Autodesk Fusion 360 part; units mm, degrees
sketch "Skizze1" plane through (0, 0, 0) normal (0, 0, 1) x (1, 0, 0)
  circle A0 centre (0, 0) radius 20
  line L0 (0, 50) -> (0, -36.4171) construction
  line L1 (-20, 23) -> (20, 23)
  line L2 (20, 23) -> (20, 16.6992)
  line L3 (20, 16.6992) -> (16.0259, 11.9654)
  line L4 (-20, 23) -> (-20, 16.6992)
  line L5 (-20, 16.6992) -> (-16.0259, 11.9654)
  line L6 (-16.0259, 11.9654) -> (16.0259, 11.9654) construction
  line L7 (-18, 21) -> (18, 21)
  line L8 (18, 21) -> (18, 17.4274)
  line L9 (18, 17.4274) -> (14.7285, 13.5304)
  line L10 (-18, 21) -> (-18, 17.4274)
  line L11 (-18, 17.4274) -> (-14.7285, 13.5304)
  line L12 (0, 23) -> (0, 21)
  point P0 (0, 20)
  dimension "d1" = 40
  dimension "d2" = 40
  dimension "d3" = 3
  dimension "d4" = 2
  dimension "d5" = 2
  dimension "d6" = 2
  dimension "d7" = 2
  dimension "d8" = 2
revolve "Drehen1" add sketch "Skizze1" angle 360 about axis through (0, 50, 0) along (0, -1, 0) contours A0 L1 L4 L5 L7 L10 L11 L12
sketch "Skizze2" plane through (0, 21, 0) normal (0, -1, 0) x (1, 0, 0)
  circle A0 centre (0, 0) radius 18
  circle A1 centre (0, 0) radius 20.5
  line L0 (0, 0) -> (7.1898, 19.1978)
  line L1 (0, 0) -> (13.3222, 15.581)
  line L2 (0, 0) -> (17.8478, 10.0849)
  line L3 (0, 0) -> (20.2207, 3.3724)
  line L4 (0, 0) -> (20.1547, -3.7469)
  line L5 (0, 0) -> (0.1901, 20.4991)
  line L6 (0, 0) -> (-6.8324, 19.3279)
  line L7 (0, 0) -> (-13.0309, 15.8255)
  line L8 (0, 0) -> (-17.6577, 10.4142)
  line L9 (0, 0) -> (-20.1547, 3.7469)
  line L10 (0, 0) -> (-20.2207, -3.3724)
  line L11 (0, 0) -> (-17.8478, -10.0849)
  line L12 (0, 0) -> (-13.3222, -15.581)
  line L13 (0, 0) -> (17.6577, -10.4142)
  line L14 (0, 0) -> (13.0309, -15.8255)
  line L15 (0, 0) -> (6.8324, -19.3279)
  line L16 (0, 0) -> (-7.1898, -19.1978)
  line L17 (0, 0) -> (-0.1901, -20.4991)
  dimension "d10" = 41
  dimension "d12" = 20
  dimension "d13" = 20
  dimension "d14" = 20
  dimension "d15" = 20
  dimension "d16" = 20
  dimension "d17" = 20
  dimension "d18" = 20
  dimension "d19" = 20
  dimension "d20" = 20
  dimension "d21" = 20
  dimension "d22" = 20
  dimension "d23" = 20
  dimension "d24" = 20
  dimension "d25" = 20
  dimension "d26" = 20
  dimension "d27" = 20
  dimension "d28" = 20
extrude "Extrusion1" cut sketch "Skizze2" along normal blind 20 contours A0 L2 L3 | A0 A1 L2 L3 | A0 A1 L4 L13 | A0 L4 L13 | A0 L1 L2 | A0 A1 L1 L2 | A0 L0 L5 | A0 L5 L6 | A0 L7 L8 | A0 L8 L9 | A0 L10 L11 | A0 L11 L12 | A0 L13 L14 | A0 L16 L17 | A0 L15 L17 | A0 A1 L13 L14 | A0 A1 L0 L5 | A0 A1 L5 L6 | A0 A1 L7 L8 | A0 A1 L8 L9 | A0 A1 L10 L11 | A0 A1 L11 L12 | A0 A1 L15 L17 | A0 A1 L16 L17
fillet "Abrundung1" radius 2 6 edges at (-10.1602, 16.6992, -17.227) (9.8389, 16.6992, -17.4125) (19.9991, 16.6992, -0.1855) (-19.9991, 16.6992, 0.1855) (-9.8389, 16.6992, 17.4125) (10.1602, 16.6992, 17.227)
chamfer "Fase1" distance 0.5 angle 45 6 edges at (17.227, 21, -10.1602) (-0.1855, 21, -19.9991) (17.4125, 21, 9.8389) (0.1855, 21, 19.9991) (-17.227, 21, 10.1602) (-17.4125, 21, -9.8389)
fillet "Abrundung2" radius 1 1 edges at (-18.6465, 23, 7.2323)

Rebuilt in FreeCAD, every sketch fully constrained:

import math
import FreeCAD as App
import Part
import Sketcher


def edges_at(feature, points):
    """Names of the edges that pass closest to the given points."""
    edges = feature.Shape.Edges
    near = lambda p: min(range(len(edges)), key=lambda i: edges[i].distToShape(Part.Vertex(*p))[0])
    return sorted({f"Edge{near(p) + 1}" for p in points})

doc = App.newDocument("Part")
body = doc.addObject("PartDesign::Body", "Body")

sketch1 = doc.addObject("Sketcher::SketchObject", "Sketch")
body.addObject(sketch1)
sketch1.AttachmentSupport = (doc.XY_Plane, [""])
sketch1.MapMode = "FlatFace"
sketch1.addGeometry([
    Part.LineSegment(App.Vector(-20, 16.6992, 0), App.Vector(-16.0259, 11.9654, 0)),
    Part.ArcOfCircle(Part.Circle(App.Vector(0, 0, 0), App.Vector(0, 0, 1), 20), math.radians(137.42773), math.radians(143.253919)),
    Part.LineSegment(App.Vector(-14.7285, 13.5304, 0), App.Vector(-18, 17.4274, 0)),
    Part.LineSegment(App.Vector(-18, 17.4274, 0), App.Vector(-18, 21, 0)),
    Part.LineSegment(App.Vector(-18, 21, 0), App.Vector(0, 21, 0)),
    Part.LineSegment(App.Vector(0, 21, 0), App.Vector(0, 23, 0)),
    Part.LineSegment(App.Vector(0, 23, 0), App.Vector(-20, 23, 0)),
    Part.LineSegment(App.Vector(-20, 23, 0), App.Vector(-20, 16.6992, 0)),
], False)
sketch1.addConstraint([
    Sketcher.Constraint("Coincident", 0, 2, 1, 2),
    Sketcher.Constraint("Coincident", 1, 1, 2, 1),
    Sketcher.Constraint("Coincident", 2, 2, 3, 1),
    Sketcher.Constraint("Coincident", 3, 2, 4, 1),
    Sketcher.Constraint("Coincident", 4, 2, 5, 1),
    Sketcher.Constraint("Coincident", 5, 2, 6, 1),
    Sketcher.Constraint("Coincident", 6, 2, 7, 1),
    Sketcher.Constraint("Coincident", 7, 2, 0, 1),
    Sketcher.Constraint("Vertical", 3),
    Sketcher.Constraint("Horizontal", 4),
    Sketcher.Constraint("Vertical", 5),
    Sketcher.Constraint("Horizontal", 6),
    Sketcher.Constraint("Vertical", 7),
    Sketcher.Constraint("Coincident", 1, 3, -1, 1),
    Sketcher.Constraint("PointOnObject", 4, 2, -2),
    Sketcher.Constraint("Parallel", 0, 2),
    Sketcher.Constraint("Radius", 1, 20.0),
    Sketcher.Constraint("DistanceY", 5, 1, 5, 2, 2.0),
    Sketcher.Constraint("DistanceX", 6, 2, 3, 2, 2.0),
    Sketcher.Constraint("DistanceX", 4, 1, 4, 2, 18.0),
    Sketcher.Constraint("DistanceY", -1, 1, 3, 2, 21.0),
    Sketcher.Constraint("DistanceY", 3, 1, 3, 2, 3.5726),
    Sketcher.Constraint("DistanceY", 7, 2, 7, 1, 6.3008),
    Sketcher.Constraint("DistanceX", 0, 2, -1, 1, 16.026),
])
revolution = doc.addObject("PartDesign::Revolution", "Revolution")
body.addObject(revolution)
revolution.Profile = sketch1
revolution.ReferenceAxis = (sketch1, ["V_Axis"])
revolution.Angle = 360

sketch2 = doc.addObject("Sketcher::SketchObject", "Sketch001")
body.addObject(sketch2)
sketch2.AttachmentSupport = (doc.XZ_Plane, [""])
sketch2.MapMode = "FlatFace"
sketch2.AttachmentOffset = App.Placement(App.Vector(0, 0, -21), App.Rotation())
sketch2.addGeometry([
    Part.LineSegment(App.Vector(0, 0, 0), App.Vector(20.2207, 3.3724, 0)),
    Part.ArcOfCircle(Part.Circle(App.Vector(0, 0, 0), App.Vector(0, 0, 1), 20.5), math.radians(9.468617), math.radians(49.468612)),
    Part.LineSegment(App.Vector(13.3222, 15.581, 0), App.Vector(0, 0, 0)),
    Part.LineSegment(App.Vector(20.1547, -3.7469, 0), App.Vector(0, 0, 0)),
    Part.LineSegment(App.Vector(0, 0, 0), App.Vector(13.0309, -15.8255, 0)),
    Part.ArcOfCircle(Part.Circle(App.Vector(0, 0, 0), App.Vector(0, 0, 1), 20.5), math.radians(-50.531563), math.radians(-10.531458)),
    Part.LineSegment(App.Vector(0, 0, 0), App.Vector(7.1898, 19.1978, 0)),
    Part.ArcOfCircle(Part.Circle(App.Vector(0, 0, 0), App.Vector(0, 0, 1), 20.5), math.radians(69.468489), math.radians(109.468468)),
    Part.LineSegment(App.Vector(-6.8324, 19.3279, 0), App.Vector(0, 0, 0)),
    Part.LineSegment(App.Vector(0, 0, 0), App.Vector(-13.0309, 15.8255, 0)),
    Part.ArcOfCircle(Part.Circle(App.Vector(0, 0, 0), App.Vector(0, 0, 1), 20.5), math.radians(129.468437), math.radians(169.468542)),
    Part.LineSegment(App.Vector(-20.1547, 3.7469, 0), App.Vector(0, 0, 0)),
    Part.LineSegment(App.Vector(0, 0, 0), App.Vector(-20.2207, -3.3724, 0)),
    Part.ArcOfCircle(Part.Circle(App.Vector(0, 0, 0), App.Vector(0, 0, 1), 20.5), math.radians(-170.531383), math.radians(-130.531388)),
    Part.LineSegment(App.Vector(-13.3222, -15.581, 0), App.Vector(0, 0, 0)),
    Part.LineSegment(App.Vector(0, 0, 0), App.Vector(-7.1898, -19.1978, 0)),
    Part.ArcOfCircle(Part.Circle(App.Vector(0, 0, 0), App.Vector(0, 0, 1), 20.5), math.radians(-110.531511), math.radians(-70.531532)),
    Part.LineSegment(App.Vector(6.8324, -19.3279, 0), App.Vector(0, 0, 0)),
], False)
sketch2.addConstraint([
    Sketcher.Constraint("Coincident", 0, 2, 1, 1),
    Sketcher.Constraint("Coincident", 1, 2, 2, 1),
    Sketcher.Constraint("Coincident", 2, 2, 0, 1),
    Sketcher.Constraint("Coincident", 3, 2, 4, 1),
    Sketcher.Constraint("Coincident", 4, 2, 5, 1),
    Sketcher.Constraint("Coincident", 5, 2, 3, 1),
    Sketcher.Constraint("Coincident", 6, 2, 7, 1),
    Sketcher.Constraint("Coincident", 7, 2, 8, 1),
    Sketcher.Constraint("Coincident", 8, 2, 6, 1),
    Sketcher.Constraint("Coincident", 9, 2, 10, 1),
    Sketcher.Constraint("Coincident", 10, 2, 11, 1),
    Sketcher.Constraint("Coincident", 11, 2, 9, 1),
    Sketcher.Constraint("Coincident", 12, 2, 13, 1),
    Sketcher.Constraint("Coincident", 13, 2, 14, 1),
    Sketcher.Constraint("Coincident", 14, 2, 12, 1),
    Sketcher.Constraint("Coincident", 15, 2, 16, 1),
    Sketcher.Constraint("Coincident", 16, 2, 17, 1),
    Sketcher.Constraint("Coincident", 17, 2, 15, 1),
    Sketcher.Constraint("Coincident", 1, 3, -1, 1),
    Sketcher.Constraint("Coincident", 5, 3, -1, 1),
    Sketcher.Constraint("Coincident", 7, 3, -1, 1),
    Sketcher.Constraint("Coincident", 10, 3, -1, 1),
    Sketcher.Constraint("Coincident", 13, 3, -1, 1),
    Sketcher.Constraint("Coincident", 16, 3, -1, 1),
    Sketcher.Constraint("Coincident", 2, 2, -1, 1),
    Sketcher.Constraint("Coincident", 3, 2, -1, 1),
    Sketcher.Constraint("Coincident", 8, 2, -1, 1),
    Sketcher.Constraint("Coincident", 11, 2, -1, 1),
    Sketcher.Constraint("Coincident", 14, 2, -1, 1),
    Sketcher.Constraint("Coincident", 17, 2, -1, 1),
    Sketcher.Constraint("Equal", 1, 5),
    Sketcher.Constraint("Equal", 5, 7),
    Sketcher.Constraint("Equal", 7, 10),
    Sketcher.Constraint("Equal", 10, 13),
    Sketcher.Constraint("Equal", 13, 16),
    Sketcher.Constraint("Parallel", 4, 9),
    Sketcher.Constraint("Parallel", 3, 11),
    Sketcher.Constraint("Parallel", 0, 12),
    Sketcher.Constraint("Parallel", 2, 14),
    Sketcher.Constraint("Parallel", 6, 15),
    Sketcher.Constraint("Parallel", 8, 17),
    Sketcher.Constraint("Radius", 1, 20.5),
    Sketcher.Constraint("DistanceY", 6, 2, 7, 2, 0.13),
    Sketcher.Constraint("DistanceY", -1, 1, 1, 2, 15.581),
    Sketcher.Constraint("DistanceX", -1, 1, 4, 2, 13.031),
    Sketcher.Constraint("DistanceY", 5, 2, -1, 1, 3.747),
    Sketcher.Constraint("DistanceY", -1, 1, 7, 2, 19.328),
    Sketcher.Constraint("DistanceX", 5, 2, 0, 2, 0.066),
])
pocket1 = doc.addObject("PartDesign::Pocket", "Pocket")
body.addObject(pocket1)
pocket1.Profile = sketch2
pocket1.Length = 20
pocket1.Reversed = True
doc.recompute()

fillet = doc.addObject("PartDesign::Fillet", "Fillet")
body.addObject(fillet)
fillet.Base = (pocket1, edges_at(pocket1, [
    (-10.16, 16.699, -17.227),
    (9.839, 16.699, -17.413),
    (19.999, 16.699, -0.185),
    (-19.999, 16.699, 0.185),
    (-9.839, 16.699, 17.413),
    (10.16, 16.699, 17.227),
]))
fillet.Radius = 2
doc.recompute()

chamfer = doc.addObject("PartDesign::Chamfer", "Chamfer")
body.addObject(chamfer)
chamfer.Base = (fillet, edges_at(fillet, [
    (17.227, 21, -10.16),
    (-0.185, 21, -19.999),
    (17.413, 21, 9.839),
    (0.185, 21, 19.999),
    (-17.227, 21, 10.16),
    (-17.413, 21, -9.839),
]))
chamfer.Size = 0.5
doc.recompute()

fillet2 = doc.addObject("PartDesign::Fillet", "Fillet001")
body.addObject(fillet2)
fillet2.Base = (chamfer, edges_at(chamfer, [(-18.646, 23, 7.232)]))
fillet2.Radius = 1

doc.recompute()
